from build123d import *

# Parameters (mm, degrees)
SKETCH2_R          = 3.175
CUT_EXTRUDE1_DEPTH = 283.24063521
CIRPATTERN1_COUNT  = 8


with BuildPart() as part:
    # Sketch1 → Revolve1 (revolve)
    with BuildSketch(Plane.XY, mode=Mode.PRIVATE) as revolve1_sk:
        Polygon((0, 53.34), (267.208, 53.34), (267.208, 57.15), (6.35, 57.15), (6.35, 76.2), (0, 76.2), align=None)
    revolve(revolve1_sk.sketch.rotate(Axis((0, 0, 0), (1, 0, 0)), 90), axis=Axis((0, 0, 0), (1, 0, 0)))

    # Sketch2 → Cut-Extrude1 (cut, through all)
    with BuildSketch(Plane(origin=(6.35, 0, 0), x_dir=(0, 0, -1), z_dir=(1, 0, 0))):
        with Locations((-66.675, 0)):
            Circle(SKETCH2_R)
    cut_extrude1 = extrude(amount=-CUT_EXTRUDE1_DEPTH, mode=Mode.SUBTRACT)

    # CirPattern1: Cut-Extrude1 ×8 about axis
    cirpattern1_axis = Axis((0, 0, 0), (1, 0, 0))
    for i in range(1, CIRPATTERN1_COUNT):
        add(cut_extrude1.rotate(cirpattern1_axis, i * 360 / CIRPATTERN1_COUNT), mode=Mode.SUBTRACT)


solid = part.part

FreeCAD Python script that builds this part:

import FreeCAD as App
import Part
import Sketcher
Q = App.Units.Quantity

doc = App.newDocument("Part")
params = doc.addObject("Spreadsheet::Sheet", "Params")
for row, (alias, value) in enumerate([
    ("sketch1_height", "0.9 in"),
    ("sketch1_width", "10.52 in"),
    ("sketch1_width2", "10.27 in"),
    ("sketch1_height2", "0.15 in"),
    ("revolution_angle", "360 deg"),
    ("sketch2_diameter", "0.25 in"),
], start=1):
    params.set(f"A{row}", alias)
    params.set(f"B{row}", "=" + value)
    params.setAlias(f"B{row}", alias)

body = doc.addObject("PartDesign::Body", "Body")

# Sketch on XY plane
sketch1 = body.newObject("Sketcher::SketchObject", "Sketch")
sketch1.AttachmentSupport = (doc.getObject("XY_Plane"), [""])
sketch1.MapMode = "FlatFace"
sketch1.addGeometry([
    Part.LineSegment(App.Vector(0, 53.3, 0), App.Vector(267.2, 53.3, 0)),  # 0
    Part.LineSegment(App.Vector(267.2, 53.3, 0), App.Vector(267.2, 57.1, 0)),  # 1
    Part.LineSegment(App.Vector(267.2, 57.1, 0), App.Vector(6.3, 57.1, 0)),  # 2
    Part.LineSegment(App.Vector(6.3, 57.1, 0), App.Vector(6.3, 76.2, 0)),  # 3
    Part.LineSegment(App.Vector(6.3, 76.2, 0), App.Vector(0, 76.2, 0)),  # 4
    Part.LineSegment(App.Vector(0, 76.2, 0), App.Vector(0, 53.3, 0)),  # 5
], False)
sketch1.addConstraint([
    Sketcher.Constraint("Coincident", 0, 2, 1, 1),
    Sketcher.Constraint("Coincident", 1, 2, 2, 1),
    Sketcher.Constraint("Coincident", 2, 2, 3, 1),
    Sketcher.Constraint("Coincident", 3, 2, 4, 1),
    Sketcher.Constraint("Coincident", 4, 2, 5, 1),
    Sketcher.Constraint("Coincident", 5, 2, 0, 1),
    Sketcher.Constraint("Horizontal", 0),
    Sketcher.Constraint("Vertical", 1),
    Sketcher.Constraint("Horizontal", 2),
    Sketcher.Constraint("Vertical", 3),
    Sketcher.Constraint("Horizontal", 4),
    Sketcher.Constraint("Vertical", 5),
    Sketcher.Constraint("PointOnObject", 4, 2, -2),
    Sketcher.Constraint("DistanceY", 5, 2, 5, 1, Q("0.9 in")),
    Sketcher.Constraint("DistanceY", -1, 1, 3, 2, Q("3 in")),
    Sketcher.Constraint("DistanceX", 0, 1, 0, 2, Q("10.52 in")),
    Sketcher.Constraint("DistanceX", 2, 2, 2, 1, Q("10.27 in")),
    Sketcher.Constraint("DistanceY", 1, 1, 1, 2, Q("0.15 in")),
])
sketch1.setExpression("Constraints[13]", "Params.sketch1_height")
sketch1.setExpression("Constraints[15]", "Params.sketch1_width")
sketch1.setExpression("Constraints[16]", "Params.sketch1_width2")
sketch1.setExpression("Constraints[17]", "Params.sketch1_height2")
revolution = body.newObject("PartDesign::Revolution", "Revolution")
revolution.Profile = sketch1
revolution.ReferenceAxis = (sketch1, ["H_Axis"])
revolution.setExpression("Angle", "Params.revolution_angle")

# Sketch on YZ plane
sketch2 = body.newObject("Sketcher::SketchObject", "Sketch001")
sketch2.AttachmentSupport = (doc.getObject("YZ_Plane"), [""])
sketch2.MapMode = "FlatFace"
sketch2.AttachmentOffset = App.Placement(App.Vector(0, 0, 0.25 * 25.4), App.Rotation())
sketch2.addGeometry(Part.Circle(App.Vector(0, 66.7, 0), App.Vector(0, 0, 1), 3.2), False)
sketch2.addConstraint([
    Sketcher.Constraint("PointOnObject", 0, 3, -2),
    Sketcher.Constraint("Diameter", 0, Q("0.25 in")),
    Sketcher.Constraint("DistanceY", -1, 1, 0, 3, Q("2.625 in")),
])
sketch2.setExpression("Constraints[1]", "Params.sketch2_diameter")
pocket1 = body.newObject("PartDesign::Pocket", "Pocket")
pocket1.Profile = sketch2
pocket1.Type = "ThroughAll"
doc.recompute()

polarpattern = body.newObject("PartDesign::PolarPattern", "PolarPattern")
polarpattern.Originals = [pocket1]
polarpattern.Axis = (doc.getObject("X_Axis"), [""])
polarpattern.Angle = 360
polarpattern.Occurrences = 8
body.Tip = polarpattern

doc.recompute()
